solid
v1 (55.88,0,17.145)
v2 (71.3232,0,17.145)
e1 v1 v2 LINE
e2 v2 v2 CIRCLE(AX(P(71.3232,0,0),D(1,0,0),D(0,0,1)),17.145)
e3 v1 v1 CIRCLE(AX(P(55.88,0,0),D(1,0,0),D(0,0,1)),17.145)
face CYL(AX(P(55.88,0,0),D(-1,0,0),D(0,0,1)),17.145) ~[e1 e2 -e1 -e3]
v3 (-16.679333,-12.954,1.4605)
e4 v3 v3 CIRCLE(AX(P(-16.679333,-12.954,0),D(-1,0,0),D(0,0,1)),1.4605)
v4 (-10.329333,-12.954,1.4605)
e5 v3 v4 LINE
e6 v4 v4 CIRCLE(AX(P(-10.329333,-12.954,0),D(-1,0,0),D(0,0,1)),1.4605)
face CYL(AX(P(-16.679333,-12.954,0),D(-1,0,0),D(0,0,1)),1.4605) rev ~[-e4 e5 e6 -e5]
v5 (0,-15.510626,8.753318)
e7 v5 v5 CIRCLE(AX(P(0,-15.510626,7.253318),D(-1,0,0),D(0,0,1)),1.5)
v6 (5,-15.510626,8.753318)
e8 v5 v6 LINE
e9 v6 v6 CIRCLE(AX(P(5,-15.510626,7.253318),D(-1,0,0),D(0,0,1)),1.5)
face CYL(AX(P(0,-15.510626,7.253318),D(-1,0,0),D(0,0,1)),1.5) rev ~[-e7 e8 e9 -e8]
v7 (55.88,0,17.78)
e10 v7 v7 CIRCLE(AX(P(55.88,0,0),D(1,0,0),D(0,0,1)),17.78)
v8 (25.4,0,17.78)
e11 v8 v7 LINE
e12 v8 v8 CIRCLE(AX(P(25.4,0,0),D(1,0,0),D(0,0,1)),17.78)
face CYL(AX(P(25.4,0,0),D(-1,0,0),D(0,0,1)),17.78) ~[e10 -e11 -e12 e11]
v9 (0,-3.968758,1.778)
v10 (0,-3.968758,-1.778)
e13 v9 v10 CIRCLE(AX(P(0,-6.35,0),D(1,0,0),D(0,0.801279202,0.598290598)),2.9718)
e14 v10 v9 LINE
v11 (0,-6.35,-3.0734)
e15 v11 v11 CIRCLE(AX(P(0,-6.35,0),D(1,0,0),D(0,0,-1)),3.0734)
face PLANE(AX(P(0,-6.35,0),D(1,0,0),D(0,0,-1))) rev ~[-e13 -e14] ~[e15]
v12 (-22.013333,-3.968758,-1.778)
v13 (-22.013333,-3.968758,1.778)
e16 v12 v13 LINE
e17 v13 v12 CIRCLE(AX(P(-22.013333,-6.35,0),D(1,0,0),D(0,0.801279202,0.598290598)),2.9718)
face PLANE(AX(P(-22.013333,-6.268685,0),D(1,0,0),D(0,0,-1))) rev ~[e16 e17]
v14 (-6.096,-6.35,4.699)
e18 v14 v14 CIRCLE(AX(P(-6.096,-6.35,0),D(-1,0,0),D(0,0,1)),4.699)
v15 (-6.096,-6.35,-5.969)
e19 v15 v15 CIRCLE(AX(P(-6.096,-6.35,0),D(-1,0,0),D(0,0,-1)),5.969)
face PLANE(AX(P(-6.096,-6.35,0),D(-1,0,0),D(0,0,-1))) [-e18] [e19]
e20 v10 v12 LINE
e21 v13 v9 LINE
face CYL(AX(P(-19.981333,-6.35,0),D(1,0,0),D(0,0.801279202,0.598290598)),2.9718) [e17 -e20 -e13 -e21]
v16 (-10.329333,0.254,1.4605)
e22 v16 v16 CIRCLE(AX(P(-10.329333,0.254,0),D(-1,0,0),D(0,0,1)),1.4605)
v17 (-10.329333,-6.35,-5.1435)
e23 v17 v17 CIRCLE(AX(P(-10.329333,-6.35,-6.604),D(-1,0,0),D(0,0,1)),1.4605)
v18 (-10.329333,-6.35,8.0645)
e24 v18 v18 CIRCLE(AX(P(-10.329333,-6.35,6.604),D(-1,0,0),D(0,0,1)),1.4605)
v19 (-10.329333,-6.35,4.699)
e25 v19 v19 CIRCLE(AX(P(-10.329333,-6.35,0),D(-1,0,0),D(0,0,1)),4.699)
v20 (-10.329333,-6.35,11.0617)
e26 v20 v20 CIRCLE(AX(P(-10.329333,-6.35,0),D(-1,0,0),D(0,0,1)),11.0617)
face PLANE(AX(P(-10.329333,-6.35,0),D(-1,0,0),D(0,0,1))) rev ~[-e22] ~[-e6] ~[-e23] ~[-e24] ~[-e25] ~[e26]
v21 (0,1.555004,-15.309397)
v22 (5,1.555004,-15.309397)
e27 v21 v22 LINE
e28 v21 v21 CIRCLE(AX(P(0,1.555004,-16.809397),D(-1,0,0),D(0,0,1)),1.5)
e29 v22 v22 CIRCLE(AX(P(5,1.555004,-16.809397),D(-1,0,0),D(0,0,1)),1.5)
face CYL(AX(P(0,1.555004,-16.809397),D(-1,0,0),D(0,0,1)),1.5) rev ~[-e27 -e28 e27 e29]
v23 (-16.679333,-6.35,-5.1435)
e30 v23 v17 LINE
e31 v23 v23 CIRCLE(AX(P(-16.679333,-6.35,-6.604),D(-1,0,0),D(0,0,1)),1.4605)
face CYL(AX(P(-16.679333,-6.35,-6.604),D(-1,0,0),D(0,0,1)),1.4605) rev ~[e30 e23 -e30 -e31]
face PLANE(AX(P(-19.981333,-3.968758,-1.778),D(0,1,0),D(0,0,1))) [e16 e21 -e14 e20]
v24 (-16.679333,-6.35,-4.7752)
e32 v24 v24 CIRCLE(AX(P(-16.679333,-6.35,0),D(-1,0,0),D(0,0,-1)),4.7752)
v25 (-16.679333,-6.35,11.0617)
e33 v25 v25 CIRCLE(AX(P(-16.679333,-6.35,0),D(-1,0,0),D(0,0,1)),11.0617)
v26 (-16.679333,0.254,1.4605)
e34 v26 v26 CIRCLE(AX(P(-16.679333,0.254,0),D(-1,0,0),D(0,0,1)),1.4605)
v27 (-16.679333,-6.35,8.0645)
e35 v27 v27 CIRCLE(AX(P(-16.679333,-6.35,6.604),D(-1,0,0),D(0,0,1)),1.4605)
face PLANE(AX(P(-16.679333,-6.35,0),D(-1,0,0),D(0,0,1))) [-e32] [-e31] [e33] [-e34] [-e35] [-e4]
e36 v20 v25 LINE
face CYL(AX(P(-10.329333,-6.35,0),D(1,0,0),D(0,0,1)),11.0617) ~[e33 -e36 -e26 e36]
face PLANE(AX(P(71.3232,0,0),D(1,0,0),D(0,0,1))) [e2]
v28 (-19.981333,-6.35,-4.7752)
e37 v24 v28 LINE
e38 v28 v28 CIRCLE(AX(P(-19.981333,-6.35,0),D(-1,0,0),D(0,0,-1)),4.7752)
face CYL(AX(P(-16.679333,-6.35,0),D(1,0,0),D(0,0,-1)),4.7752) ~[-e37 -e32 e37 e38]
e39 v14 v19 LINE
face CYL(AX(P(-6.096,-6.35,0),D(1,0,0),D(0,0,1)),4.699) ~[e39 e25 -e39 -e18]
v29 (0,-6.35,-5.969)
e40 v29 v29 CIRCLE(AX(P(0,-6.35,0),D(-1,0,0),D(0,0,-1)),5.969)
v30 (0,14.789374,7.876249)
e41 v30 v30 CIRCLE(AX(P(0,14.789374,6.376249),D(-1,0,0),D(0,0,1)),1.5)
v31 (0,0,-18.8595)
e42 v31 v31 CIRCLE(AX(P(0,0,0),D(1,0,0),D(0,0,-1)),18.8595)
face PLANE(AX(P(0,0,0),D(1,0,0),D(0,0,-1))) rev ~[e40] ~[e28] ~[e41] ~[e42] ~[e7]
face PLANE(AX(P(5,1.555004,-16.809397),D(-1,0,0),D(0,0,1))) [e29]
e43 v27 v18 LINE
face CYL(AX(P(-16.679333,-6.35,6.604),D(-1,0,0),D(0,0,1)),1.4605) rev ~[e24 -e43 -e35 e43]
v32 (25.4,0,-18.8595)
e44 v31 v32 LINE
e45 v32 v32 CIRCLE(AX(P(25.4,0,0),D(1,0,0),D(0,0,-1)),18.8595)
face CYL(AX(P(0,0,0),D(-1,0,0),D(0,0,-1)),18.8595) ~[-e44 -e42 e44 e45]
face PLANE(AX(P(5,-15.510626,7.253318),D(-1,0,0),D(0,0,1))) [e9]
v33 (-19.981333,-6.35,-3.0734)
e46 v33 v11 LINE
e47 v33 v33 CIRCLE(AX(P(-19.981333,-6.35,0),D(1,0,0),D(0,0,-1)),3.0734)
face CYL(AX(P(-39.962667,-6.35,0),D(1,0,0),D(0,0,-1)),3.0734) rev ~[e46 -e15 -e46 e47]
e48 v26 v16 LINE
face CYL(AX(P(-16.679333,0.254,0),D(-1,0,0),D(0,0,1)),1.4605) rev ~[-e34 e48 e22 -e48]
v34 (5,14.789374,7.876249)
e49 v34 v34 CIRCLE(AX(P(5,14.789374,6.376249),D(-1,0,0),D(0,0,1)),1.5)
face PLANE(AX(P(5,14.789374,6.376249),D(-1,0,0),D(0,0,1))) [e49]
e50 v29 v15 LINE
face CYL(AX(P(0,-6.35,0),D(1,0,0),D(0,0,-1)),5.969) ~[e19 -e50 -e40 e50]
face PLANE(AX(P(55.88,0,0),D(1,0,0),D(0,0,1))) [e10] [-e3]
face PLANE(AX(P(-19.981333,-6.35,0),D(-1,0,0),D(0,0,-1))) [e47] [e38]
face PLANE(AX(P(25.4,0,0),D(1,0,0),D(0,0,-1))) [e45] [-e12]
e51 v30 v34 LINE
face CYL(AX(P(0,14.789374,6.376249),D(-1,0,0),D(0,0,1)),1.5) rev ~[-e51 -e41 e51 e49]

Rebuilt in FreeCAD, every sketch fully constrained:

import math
import FreeCAD as App
import Part
import Sketcher
from FreeCAD import Vector
Q = App.Units.Quantity

doc = App.newDocument("Part")
body = doc.addObject("PartDesign::Body", "Body")

# Sketch on YZ plane
sketch1 = body.newObject("Sketcher::SketchObject", "Sketch")
sketch1.AttachmentSupport = (doc.getObject("YZ_Plane"), [""])
sketch1.MapMode = "FlatFace"
sketch1.addGeometry(Part.Circle(Vector(0, 0, 0), Vector(0, 0, 1), 19), False)
sketch1.addConstraint([
    Sketcher.Constraint("Coincident", 0, 3, -1, 1),
    Sketcher.Constraint("Diameter", 0, Q("1.485 in")),
])
pad1 = body.newObject("PartDesign::Pad", "Pad")
pad1.Profile = sketch1
pad1.Length = Q("1 in")

# Sketch on YZ plane
sketch2 = body.newObject("Sketcher::SketchObject", "Sketch001")
sketch2.AttachmentSupport = (doc.getObject("YZ_Plane"), [""])
sketch2.MapMode = "FlatFace"
sketch2.AttachmentOffset = App.Placement(Vector(0, 0, 1 * 25.4), App.Rotation())
sketch2.addGeometry(Part.Circle(Vector(0, 0, 0), Vector(0, 0, 1), 18), False)
sketch2.addConstraint([
    Sketcher.Constraint("Coincident", 0, 3, -1, 1),
    Sketcher.Constraint("Diameter", 0, Q("1.4 in")),
])
pad2 = body.newObject("PartDesign::Pad", "Pad001")
pad2.Profile = sketch2
pad2.Length = Q("1.2 in")

# Sketch on YZ plane
sketch3 = body.newObject("Sketcher::SketchObject", "Sketch002")
sketch3.AttachmentSupport = (doc.getObject("YZ_Plane"), [""])
sketch3.MapMode = "FlatFace"
sketch3.AttachmentOffset = App.Placement(Vector(0, 0, 2.2 * 25.4), App.Rotation())
sketch3.addGeometry(Part.Circle(Vector(0, 0, 0), Vector(0, 0, 1), 17), False)
sketch3.addConstraint([
    Sketcher.Constraint("Coincident", 0, 3, -1, 1),
    Sketcher.Constraint("Diameter", 0, Q("1.35 in")),
])
pad3 = body.newObject("PartDesign::Pad", "Pad002")
pad3.Profile = sketch3
pad3.Length = Q("0.608 in")

# Sketch on YZ plane
sketch4 = body.newObject("Sketcher::SketchObject", "Sketch003")
sketch4.AttachmentSupport = (doc.getObject("YZ_Plane"), [""])
sketch4.MapMode = "FlatFace"
sketch4.addGeometry(Part.Circle(Vector(-6, 0, 0), Vector(0, 0, 1), 6), False)
sketch4.addConstraint([
    Sketcher.Constraint("PointOnObject", 0, 3, -1),
    Sketcher.Constraint("Diameter", 0, Q("0.47 in")),
    Sketcher.Constraint("DistanceX", 0, 3, -1, 1, Q("0.25 in")),
])
pad4 = body.newObject("PartDesign::Pad", "Pad003")
pad4.Profile = sketch4
pad4.Length = Q("0.24 in")
pad4.Reversed = True

# Sketch on YZ plane
sketch5 = body.newObject("Sketcher::SketchObject", "Sketch004")
sketch5.AttachmentSupport = (doc.getObject("YZ_Plane"), [""])
sketch5.MapMode = "FlatFace"
sketch5.AttachmentOffset = App.Placement(Vector(0, 0, -0.24 * 25.4), App.Rotation())
sketch5.addGeometry(Part.Circle(Vector(-6.3, 0, 0), Vector(0, 0, 1), 4.7), False)
sketch5.addConstraint([
    Sketcher.Constraint("PointOnObject", 0, 3, -1),
    Sketcher.Constraint("Diameter", 0, Q("0.37 in")),
    Sketcher.Constraint("DistanceX", 0, 3, -1, 1, Q("0.25 in")),
])
pad5 = body.newObject("PartDesign::Pad", "Pad004")
pad5.Profile = sketch5
pad5.Length = 4.233333
pad5.Reversed = True

# Sketch on YZ plane
sketch6 = body.newObject("Sketcher::SketchObject", "Sketch005")
sketch6.AttachmentSupport = (doc.getObject("YZ_Plane"), [""])
sketch6.MapMode = "FlatFace"
sketch6.AttachmentOffset = App.Placement(Vector(0, 0, -10.329333), App.Rotation())
sketch6.addGeometry(Part.Circle(Vector(-6, 0, 0), Vector(0, 0, 1), 11), False)
sketch6.addConstraint([
    Sketcher.Constraint("PointOnObject", 0, 3, -1),
    Sketcher.Constraint("Diameter", 0, Q("0.871 in")),
    Sketcher.Constraint("DistanceX", 0, 3, -1, 1, Q("0.25 in")),
])
pad6 = body.newObject("PartDesign::Pad", "Pad005")
pad6.Profile = sketch6
pad6.Length = Q("0.25 in")
pad6.Reversed = True

# Sketch on YZ plane
sketch7 = body.newObject("Sketcher::SketchObject", "Sketch006")
sketch7.AttachmentSupport = (doc.getObject("YZ_Plane"), [""])
sketch7.MapMode = "FlatFace"
sketch7.AttachmentOffset = App.Placement(Vector(0, 0, -16.679333), App.Rotation())
sketch7.addGeometry(Part.Circle(Vector(-6.3, 0, 0), Vector(0, 0, 1), 4.8), False)
sketch7.addConstraint([
    Sketcher.Constraint("PointOnObject", 0, 3, -1),
    Sketcher.Constraint("Diameter", 0, Q("0.376 in")),
    Sketcher.Constraint("DistanceX", 0, 3, -1, 1, Q("0.25 in")),
])
pad7 = body.newObject("PartDesign::Pad", "Pad006")
pad7.Profile = sketch7
pad7.Length = Q("0.13 in")
pad7.Reversed = True

# Sketch on YZ plane
sketch8 = body.newObject("Sketcher::SketchObject", "Sketch007")
sketch8.AttachmentSupport = (doc.getObject("YZ_Plane"), [""])
sketch8.MapMode = "FlatFace"
sketch8.AttachmentOffset = App.Placement(Vector(0, 0, -19.981333), App.Rotation())
sketch8.addGeometry(Part.Circle(Vector(-6.3, 0, 0), Vector(0, 0, 1), 3.1), False)
sketch8.addConstraint([
    Sketcher.Constraint("PointOnObject", 0, 3, -1),
    Sketcher.Constraint("Diameter", 0, Q("0.242 in")),
    Sketcher.Constraint("DistanceX", 0, 3, -1, 1, Q("0.25 in")),
])
doc.recompute()
hole = body.newObject("PartDesign::Hole", "Hole")
hole.Profile = sketch8
hole.ThreadType = "None"
hole.Diameter = Q("0.242 in")
hole.DepthType = "Dimension"
hole.Depth = 19.981333
hole.DrillPoint = "Flat"
hole.Reversed = True

# Sketch on YZ plane
sketch9 = body.newObject("Sketcher::SketchObject", "Sketch008")
sketch9.AttachmentSupport = (doc.getObject("YZ_Plane"), [""])
sketch9.MapMode = "FlatFace"
sketch9.addGeometry([
    Part.LineSegment(Vector(-4, 1.8, 0), Vector(-4, -1.8, 0)),
    Part.ArcOfCircle(Part.Circle(Vector(-6.3, 0, 0), Vector(0, 0, 1), 3), math.radians(37), math.radians(323)),
], False)
sketch9.addConstraint([
    Sketcher.Constraint("Coincident", 0, 1, 1, 1),
    Sketcher.Constraint("Coincident", 1, 2, 0, 2),
    Sketcher.Constraint("Vertical", 0),
    Sketcher.Constraint("PointOnObject", 1, 3, -1),
    Sketcher.Constraint("Radius", 1, Q("0.117 in")),
    Sketcher.Constraint("DistanceY", 0, 2, 0, 1, Q("0.14 in")),
    Sketcher.Constraint("DistanceX", 1, 3, -1, 1, Q("0.25 in")),
])
pad8 = body.newObject("PartDesign::Pad", "Pad007")
pad8.Profile = sketch9
pad8.Length = 19.981333
pad8.Reversed = True

# Sketch on YZ plane
sketch10 = body.newObject("Sketcher::SketchObject", "Sketch009")
sketch10.AttachmentSupport = (doc.getObject("YZ_Plane"), [""])
sketch10.MapMode = "FlatFace"
sketch10.AttachmentOffset = App.Placement(Vector(0, 0, -19.981333), App.Rotation())
sketch10.addGeometry([
    Part.LineSegment(Vector(-4, 1.8, 0), Vector(-4, -1.8, 0)),
    Part.ArcOfCircle(Part.Circle(Vector(-6.3, 0, 0), Vector(0, 0, 1), 3), math.radians(37), math.radians(323)),
], False)
sketch10.addConstraint([
    Sketcher.Constraint("Coincident", 0, 1, 1, 1),
    Sketcher.Constraint("Coincident", 1, 2, 0, 2),
    Sketcher.Constraint("Vertical", 0),
    Sketcher.Constraint("PointOnObject", 1, 3, -1),
    Sketcher.Constraint("Radius", 1, Q("0.117 in")),
    Sketcher.Constraint("DistanceY", 0, 2, 0, 1, Q("0.14 in")),
    Sketcher.Constraint("DistanceX", 1, 3, -1, 1, Q("0.25 in")),
])
pad9 = body.newObject("PartDesign::Pad", "Pad008")
pad9.Profile = sketch10
pad9.Length = Q("0.08 in")
pad9.Reversed = True

# Sketch on YZ plane
sketch11 = body.newObject("Sketcher::SketchObject", "Sketch010")
sketch11.AttachmentSupport = (doc.getObject("YZ_Plane"), [""])
sketch11.MapMode = "FlatFace"
sketch11.AttachmentOffset = App.Placement(Vector(0, 0, -16.679333), App.Rotation())
sketch11.addGeometry(Part.Circle(Vector(0.3, 0, 0), Vector(0, 0, 1), 1.5), False)
sketch11.addConstraint([
    Sketcher.Constraint("PointOnObject", 0, 3, -1),
    Sketcher.Constraint("Diameter", 0, Q("0.115 in")),
    Sketcher.Constraint("DistanceX", -1, 1, 0, 3, Q("0.01 in")),
])
pocket1 = body.newObject("PartDesign::Pocket", "Pocket")
pocket1.Profile = sketch11
pocket1.Type = "UpToFirst"
pocket1.Reversed = True

# Sketch on YZ plane
sketch12 = body.newObject("Sketcher::SketchObject", "Sketch011")
sketch12.AttachmentSupport = (doc.getObject("YZ_Plane"), [""])
sketch12.MapMode = "FlatFace"
sketch12.AttachmentOffset = App.Placement(Vector(0, 0, -16.679333), App.Rotation())
sketch12.addGeometry(Part.Circle(Vector(-6.3, 6.6, 0), Vector(0, 0, 1), 1.5), False)
sketch12.addConstraint([
    Sketcher.Constraint("Diameter", 0, Q("0.115 in")),
    Sketcher.Constraint("DistanceX", 0, 3, -1, 1, Q("0.25 in")),
    Sketcher.Constraint("DistanceY", -1, 1, 0, 3, Q("0.26 in")),
])
pocket2 = body.newObject("PartDesign::Pocket", "Pocket001")
pocket2.Profile = sketch12
pocket2.Type = "UpToFirst"
pocket2.Reversed = True

# Sketch on YZ plane
sketch13 = body.newObject("Sketcher::SketchObject", "Sketch012")
sketch13.AttachmentSupport = (doc.getObject("YZ_Plane"), [""])
sketch13.MapMode = "FlatFace"
sketch13.AttachmentOffset = App.Placement(Vector(0, 0, -16.679333), App.Rotation())
sketch13.addGeometry(Part.Circle(Vector(-13, 0, 0), Vector(0, 0, 1), 1.5), False)
sketch13.addConstraint([
    Sketcher.Constraint("PointOnObject", 0, 3, -1),
    Sketcher.Constraint("Diameter", 0, Q("0.115 in")),
    Sketcher.Constraint("DistanceX", 0, 3, -1, 1, Q("0.51 in")),
])
pocket3 = body.newObject("PartDesign::Pocket", "Pocket002")
pocket3.Profile = sketch13
pocket3.Type = "UpToFirst"
pocket3.Reversed = True

# Sketch on YZ plane
sketch14 = body.newObject("Sketcher::SketchObject", "Sketch013")
sketch14.AttachmentSupport = (doc.getObject("YZ_Plane"), [""])
sketch14.MapMode = "FlatFace"
sketch14.AttachmentOffset = App.Placement(Vector(0, 0, -16.679333), App.Rotation())
sketch14.addGeometry(Part.Circle(Vector(-6.3, -6.6, 0), Vector(0, 0, 1), 1.5), False)
sketch14.addConstraint([
    Sketcher.Constraint("Diameter", 0, Q("0.115 in")),
    Sketcher.Constraint("DistanceX", 0, 3, -1, 1, Q("0.25 in")),
    Sketcher.Constraint("DistanceY", 0, 3, -1, 1, Q("0.26 in")),
])
pocket4 = body.newObject("PartDesign::Pocket", "Pocket003")
pocket4.Profile = sketch14
pocket4.Type = "UpToFirst"
pocket4.Reversed = True

# Sketch on YZ plane
sketch15 = body.newObject("Sketcher::SketchObject", "Sketch014")
sketch15.AttachmentSupport = (doc.getObject("YZ_Plane"), [""])
sketch15.MapMode = "FlatFace"
sketch15.addGeometry([
    Part.Circle(Vector(14.8, 6.4, 0), Vector(0, 0, 1), 1.5),
    Part.Circle(Vector(-15.5, 7.3, 0), Vector(0, 0, 1), 1.5),
    Part.Circle(Vector(1.6, -16.8, 0), Vector(0, 0, 1), 1.5),
], False)
sketch15.addConstraint([
    Sketcher.Constraint("Equal", 0, 1),
    Sketcher.Constraint("Equal", 1, 2),
    Sketcher.Constraint("Diameter", 0, 3.0),
    Sketcher.Constraint("DistanceX", 1, 3, 0, 3, 30.3),
    Sketcher.Constraint("DistanceY", -1, 1, 0, 3, 6.376249),
    Sketcher.Constraint("DistanceY", -1, 1, 1, 3, 7.253318),
    Sketcher.Constraint("DistanceX", 2, 3, 0, 3, 13.23437),
    Sketcher.Constraint("DistanceX", -1, 1, 0, 3, 14.789374),
    Sketcher.Constraint("DistanceY", 2, 3, -1, 1, 16.809397),
])
pocket5 = body.newObject("PartDesign::Pocket", "Pocket004")
pocket5.Profile = sketch15
pocket5.Length = 5
pocket5.Reversed = True

doc.recompute()
